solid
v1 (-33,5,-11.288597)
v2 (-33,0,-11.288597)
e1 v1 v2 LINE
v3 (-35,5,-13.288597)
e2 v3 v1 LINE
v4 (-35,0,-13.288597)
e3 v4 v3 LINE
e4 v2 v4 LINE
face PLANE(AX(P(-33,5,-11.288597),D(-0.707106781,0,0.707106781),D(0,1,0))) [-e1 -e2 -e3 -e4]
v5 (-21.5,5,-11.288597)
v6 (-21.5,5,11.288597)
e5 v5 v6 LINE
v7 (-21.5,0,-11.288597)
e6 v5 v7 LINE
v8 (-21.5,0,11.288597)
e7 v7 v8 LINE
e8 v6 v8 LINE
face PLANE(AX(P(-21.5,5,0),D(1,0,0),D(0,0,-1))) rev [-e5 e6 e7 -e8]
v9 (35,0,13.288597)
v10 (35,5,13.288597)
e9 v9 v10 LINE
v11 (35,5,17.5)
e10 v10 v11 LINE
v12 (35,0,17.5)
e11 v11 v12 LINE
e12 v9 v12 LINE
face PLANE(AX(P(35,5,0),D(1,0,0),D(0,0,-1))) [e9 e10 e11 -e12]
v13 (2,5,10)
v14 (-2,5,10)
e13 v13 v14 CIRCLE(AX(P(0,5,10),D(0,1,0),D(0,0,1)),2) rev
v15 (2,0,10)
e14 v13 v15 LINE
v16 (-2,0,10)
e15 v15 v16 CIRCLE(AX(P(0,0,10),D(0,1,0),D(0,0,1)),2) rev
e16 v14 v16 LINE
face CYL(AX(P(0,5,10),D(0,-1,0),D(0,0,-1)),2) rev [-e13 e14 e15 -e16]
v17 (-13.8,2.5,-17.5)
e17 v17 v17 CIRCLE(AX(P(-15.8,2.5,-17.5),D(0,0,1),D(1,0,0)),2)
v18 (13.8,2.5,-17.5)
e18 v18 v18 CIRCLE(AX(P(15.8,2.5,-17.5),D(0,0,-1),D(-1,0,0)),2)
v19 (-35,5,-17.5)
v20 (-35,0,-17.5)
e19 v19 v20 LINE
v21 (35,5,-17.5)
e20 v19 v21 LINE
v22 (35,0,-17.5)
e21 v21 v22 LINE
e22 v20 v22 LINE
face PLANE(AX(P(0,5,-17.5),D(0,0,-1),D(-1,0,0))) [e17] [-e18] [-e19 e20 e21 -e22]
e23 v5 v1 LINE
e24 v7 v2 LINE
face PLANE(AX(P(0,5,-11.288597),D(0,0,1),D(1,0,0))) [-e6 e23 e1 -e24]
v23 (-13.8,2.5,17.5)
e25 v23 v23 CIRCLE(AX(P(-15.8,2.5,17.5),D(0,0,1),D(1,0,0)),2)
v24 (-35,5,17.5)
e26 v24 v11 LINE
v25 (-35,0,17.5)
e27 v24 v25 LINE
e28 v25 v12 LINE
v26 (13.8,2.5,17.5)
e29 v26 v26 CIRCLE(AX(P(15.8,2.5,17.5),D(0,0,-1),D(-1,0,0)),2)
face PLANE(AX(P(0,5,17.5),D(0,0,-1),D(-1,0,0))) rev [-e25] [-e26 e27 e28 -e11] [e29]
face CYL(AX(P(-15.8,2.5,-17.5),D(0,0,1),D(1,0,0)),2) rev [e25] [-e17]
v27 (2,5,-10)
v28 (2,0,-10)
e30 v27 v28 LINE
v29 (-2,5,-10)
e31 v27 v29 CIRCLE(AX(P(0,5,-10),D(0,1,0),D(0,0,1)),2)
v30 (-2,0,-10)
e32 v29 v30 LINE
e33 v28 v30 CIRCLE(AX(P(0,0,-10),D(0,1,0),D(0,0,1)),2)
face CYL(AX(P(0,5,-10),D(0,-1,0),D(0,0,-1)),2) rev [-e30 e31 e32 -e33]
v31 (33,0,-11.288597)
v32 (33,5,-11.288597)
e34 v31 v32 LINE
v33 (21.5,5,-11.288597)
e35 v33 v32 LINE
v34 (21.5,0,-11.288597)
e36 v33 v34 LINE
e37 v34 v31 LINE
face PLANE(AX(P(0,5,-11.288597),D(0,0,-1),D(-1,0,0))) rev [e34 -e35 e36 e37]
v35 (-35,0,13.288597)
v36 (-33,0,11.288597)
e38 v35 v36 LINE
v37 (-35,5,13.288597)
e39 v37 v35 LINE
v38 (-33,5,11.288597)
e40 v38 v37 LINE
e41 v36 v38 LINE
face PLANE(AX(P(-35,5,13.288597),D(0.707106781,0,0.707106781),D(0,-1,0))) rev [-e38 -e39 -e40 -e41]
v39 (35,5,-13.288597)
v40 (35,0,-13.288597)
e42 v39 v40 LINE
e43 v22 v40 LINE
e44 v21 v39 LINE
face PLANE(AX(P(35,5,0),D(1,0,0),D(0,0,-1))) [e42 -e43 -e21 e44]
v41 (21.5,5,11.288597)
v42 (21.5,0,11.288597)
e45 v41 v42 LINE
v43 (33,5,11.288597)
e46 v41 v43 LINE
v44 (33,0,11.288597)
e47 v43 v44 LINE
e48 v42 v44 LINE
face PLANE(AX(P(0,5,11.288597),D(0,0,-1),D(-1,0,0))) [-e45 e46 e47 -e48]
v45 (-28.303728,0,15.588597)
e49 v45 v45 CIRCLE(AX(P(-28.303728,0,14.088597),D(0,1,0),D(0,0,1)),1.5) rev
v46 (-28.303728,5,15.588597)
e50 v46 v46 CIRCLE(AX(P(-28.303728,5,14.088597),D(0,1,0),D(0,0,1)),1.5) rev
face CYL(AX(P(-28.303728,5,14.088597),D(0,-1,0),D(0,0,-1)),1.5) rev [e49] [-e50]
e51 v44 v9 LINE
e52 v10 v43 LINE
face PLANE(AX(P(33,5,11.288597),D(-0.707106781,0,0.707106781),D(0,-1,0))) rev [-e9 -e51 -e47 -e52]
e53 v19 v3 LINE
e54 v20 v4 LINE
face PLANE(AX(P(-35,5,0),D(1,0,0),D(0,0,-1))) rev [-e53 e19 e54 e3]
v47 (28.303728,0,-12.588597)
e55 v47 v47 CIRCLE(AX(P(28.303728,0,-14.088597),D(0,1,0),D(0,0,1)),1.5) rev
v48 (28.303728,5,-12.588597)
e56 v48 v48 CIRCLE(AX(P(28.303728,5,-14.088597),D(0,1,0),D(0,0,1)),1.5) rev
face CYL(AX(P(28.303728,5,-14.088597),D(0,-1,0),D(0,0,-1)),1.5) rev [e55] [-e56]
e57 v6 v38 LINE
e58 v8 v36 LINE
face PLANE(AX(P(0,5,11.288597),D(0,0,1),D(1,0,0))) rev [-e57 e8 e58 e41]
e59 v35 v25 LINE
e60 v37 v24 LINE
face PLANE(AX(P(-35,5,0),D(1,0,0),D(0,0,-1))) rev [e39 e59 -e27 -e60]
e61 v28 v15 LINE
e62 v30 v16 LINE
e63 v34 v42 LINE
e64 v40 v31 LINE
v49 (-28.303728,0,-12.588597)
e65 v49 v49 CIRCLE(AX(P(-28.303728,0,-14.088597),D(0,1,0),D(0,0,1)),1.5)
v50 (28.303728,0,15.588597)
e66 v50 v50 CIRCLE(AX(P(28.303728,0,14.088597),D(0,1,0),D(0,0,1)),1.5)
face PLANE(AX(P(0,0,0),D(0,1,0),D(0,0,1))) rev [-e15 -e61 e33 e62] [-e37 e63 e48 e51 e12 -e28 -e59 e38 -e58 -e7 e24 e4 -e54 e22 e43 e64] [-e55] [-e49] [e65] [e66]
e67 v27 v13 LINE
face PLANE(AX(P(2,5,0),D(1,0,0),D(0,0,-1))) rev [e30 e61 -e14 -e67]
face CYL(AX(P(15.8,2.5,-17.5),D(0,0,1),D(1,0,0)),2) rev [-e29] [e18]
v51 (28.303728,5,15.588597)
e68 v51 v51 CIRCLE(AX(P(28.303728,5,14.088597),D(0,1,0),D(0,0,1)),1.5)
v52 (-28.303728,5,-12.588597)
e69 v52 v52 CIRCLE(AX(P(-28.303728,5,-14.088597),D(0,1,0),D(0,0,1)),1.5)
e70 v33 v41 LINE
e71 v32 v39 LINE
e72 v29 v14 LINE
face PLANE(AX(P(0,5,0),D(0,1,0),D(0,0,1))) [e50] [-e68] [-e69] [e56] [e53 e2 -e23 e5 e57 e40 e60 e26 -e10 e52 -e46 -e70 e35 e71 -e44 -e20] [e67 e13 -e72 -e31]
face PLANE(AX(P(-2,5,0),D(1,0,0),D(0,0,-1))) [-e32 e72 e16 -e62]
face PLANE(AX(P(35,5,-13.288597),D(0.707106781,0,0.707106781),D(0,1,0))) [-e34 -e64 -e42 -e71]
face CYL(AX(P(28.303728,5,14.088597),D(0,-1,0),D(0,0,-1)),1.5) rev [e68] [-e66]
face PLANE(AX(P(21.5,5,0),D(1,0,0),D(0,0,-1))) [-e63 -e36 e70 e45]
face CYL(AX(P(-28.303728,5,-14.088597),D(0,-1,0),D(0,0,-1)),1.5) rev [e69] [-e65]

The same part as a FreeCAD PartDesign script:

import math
import FreeCAD as App
import Part
import Sketcher

V = App.Vector
Q = App.Units.Quantity


def edges_at(feature, points):
    """Names of the edges that pass closest to the given points."""
    edges = feature.Shape.Edges
    near = lambda p: min(range(len(edges)), key=lambda i: edges[i].distToShape(Part.Vertex(*p))[0])
    return sorted({f"Edge{near(p) + 1}" for p in points})

doc = App.newDocument("Part")
params = doc.addObject("Spreadsheet::Sheet", "Params")
for row, (alias, value) in enumerate([
    ("sketch1_diameter", "3 mm"),
    ("sketch1_radius", "2 mm"),
    ("sketch1_width", "70 mm"),
    ("sketch1_height", "20 mm"),
    ("sketch1_width2", "13.5 mm"),
    ("pad1_length", "5 mm"),
    ("chamfer_size", "2 mm"),
    ("sketch2_diameter", "4 mm"),
], start=1):
    params.set(f"A{row}", alias)
    params.set(f"B{row}", "=" + value)
    params.setAlias(f"B{row}", alias)

body = doc.addObject("PartDesign::Body", "Body")

# Sketch on XZ plane
sketch1 = body.newObject("Sketcher::SketchObject", "Sketch")
sketch1.AttachmentSupport = (doc.getObject("XZ_Plane"), [""])
sketch1.MapMode = "FlatFace"
sketch1.addGeometry(Part.LineSegment(V(35, -17.5, 0), V(-35, -17.5, 0)), False)
sketch1.addGeometry(Part.LineSegment(V(-35, -17.5, 0), V(-35, -11.3, 0)), False)
sketch1.addGeometry(Part.LineSegment(V(-35, -11.3, 0), V(-21.5, -11.3, 0)), False)
sketch1.addGeometry(Part.LineSegment(V(-21.5, -11.3, 0), V(-21.5, 11.3, 0)), False)
sketch1.addGeometry(Part.LineSegment(V(-21.5, 11.3, 0), V(-35, 11.3, 0)), False)
sketch1.addGeometry(Part.LineSegment(V(-35, 11.3, 0), V(-35, 17.5, 0)), False)
sketch1.addGeometry(Part.LineSegment(V(-35, 17.5, 0), V(35, 17.5, 0)), False)
sketch1.addGeometry(Part.LineSegment(V(35, 17.5, 0), V(35, 11.3, 0)), False)
sketch1.addGeometry(Part.LineSegment(V(35, 11.3, 0), V(21.5, 11.3, 0)), False)
sketch1.addGeometry(Part.LineSegment(V(21.5, 11.3, 0), V(21.5, -11.3, 0)), False)
sketch1.addGeometry(Part.LineSegment(V(21.5, -11.3, 0), V(35, -11.3, 0)), False)
sketch1.addGeometry(Part.LineSegment(V(35, -11.3, 0), V(35, -17.5, 0)), False)
sketch1.addGeometry(Part.Circle(V(-28.3, 14.1, 0), V(0, 0, 1), 1.5), False)
sketch1.addGeometry(Part.Circle(V(28.3, 14.1, 0), V(0, 0, 1), 1.5), False)
sketch1.addGeometry(Part.Circle(V(-28.3, -14.1, 0), V(0, 0, 1), 1.5), False)
sketch1.addGeometry(Part.LineSegment(V(-2, 10, 0), V(-2, -10, 0)), False)
sketch1.addGeometry(Part.ArcOfCircle(Part.Circle(V(0, -10, 0), V(0, 0, 1), 2), math.radians(180), math.radians(360)), False)
sketch1.addGeometry(Part.LineSegment(V(2, -10, 0), V(2, 10, 0)), False)
sketch1.addGeometry(Part.ArcOfCircle(Part.Circle(V(0, 10, 0), V(0, 0, 1), 2), math.radians(0), math.radians(180)), False)
sketch1.addGeometry(Part.Circle(V(28.3, -14.1, 0), V(0, 0, 1), 1.5), False)
sketch1.addConstraint(Sketcher.Constraint("Coincident", 0, 2, 1, 1))
sketch1.addConstraint(Sketcher.Constraint("Coincident", 1, 2, 2, 1))
sketch1.addConstraint(Sketcher.Constraint("Coincident", 2, 2, 3, 1))
sketch1.addConstraint(Sketcher.Constraint("Coincident", 3, 2, 4, 1))
sketch1.addConstraint(Sketcher.Constraint("Coincident", 4, 2, 5, 1))
sketch1.addConstraint(Sketcher.Constraint("Coincident", 5, 2, 6, 1))
sketch1.addConstraint(Sketcher.Constraint("Coincident", 6, 2, 7, 1))
sketch1.addConstraint(Sketcher.Constraint("Coincident", 7, 2, 8, 1))
sketch1.addConstraint(Sketcher.Constraint("Coincident", 8, 2, 9, 1))
sketch1.addConstraint(Sketcher.Constraint("Coincident", 9, 2, 10, 1))
sketch1.addConstraint(Sketcher.Constraint("Coincident", 10, 2, 11, 1))
sketch1.addConstraint(Sketcher.Constraint("Coincident", 11, 2, 0, 1))
sketch1.addConstraint(Sketcher.Constraint("Tangent", 15, 2, 16, 1))
sketch1.addConstraint(Sketcher.Constraint("Tangent", 16, 2, 17, 1))
sketch1.addConstraint(Sketcher.Constraint("Tangent", 17, 2, 18, 1))
sketch1.addConstraint(Sketcher.Constraint("Tangent", 18, 2, 15, 1))
sketch1.addConstraint(Sketcher.Constraint("Horizontal", 0))
sketch1.addConstraint(Sketcher.Constraint("Vertical", 1))
sketch1.addConstraint(Sketcher.Constraint("Horizontal", 2))
sketch1.addConstraint(Sketcher.Constraint("Vertical", 3))
sketch1.addConstraint(Sketcher.Constraint("Horizontal", 4))
sketch1.addConstraint(Sketcher.Constraint("Vertical", 5))
sketch1.addConstraint(Sketcher.Constraint("Horizontal", 6))
sketch1.addConstraint(Sketcher.Constraint("Vertical", 7))
sketch1.addConstraint(Sketcher.Constraint("Horizontal", 8))
sketch1.addConstraint(Sketcher.Constraint("Vertical", 9))
sketch1.addConstraint(Sketcher.Constraint("Horizontal", 10))
sketch1.addConstraint(Sketcher.Constraint("Vertical", 11))
sketch1.addConstraint(Sketcher.Constraint("Vertical", 15))
sketch1.addConstraint(Sketcher.Constraint("Vertical", 17))
sketch1.addConstraint(Sketcher.Constraint("Equal", 12, 13))
sketch1.addConstraint(Sketcher.Constraint("Equal", 13, 14))
sketch1.addConstraint(Sketcher.Constraint("Equal", 14, 19))
sketch1.addConstraint(Sketcher.Constraint("Symmetric", 13, 3, 14, 3, -1, 1))
sketch1.addConstraint(Sketcher.Constraint("Symmetric", 16, 3, 18, 3, -1, 1))
sketch1.addConstraint(Sketcher.Constraint("Symmetric", 12, 3, 19, 3, -1, 1))
sketch1.addConstraint(Sketcher.Constraint("Symmetric", 0, 2, 6, 2, -1, 1))
sketch1.addConstraint(Sketcher.Constraint("Symmetric", 2, 2, 8, 2, -1, 1))
sketch1.addConstraint(Sketcher.Constraint("Symmetric", 4, 2, 10, 2, -1, 1))
sketch1.addConstraint(Sketcher.Constraint("Symmetric", 12, 3, 13, 3, -2))
sketch1.addConstraint(Sketcher.Constraint("Symmetric", 4, 2, 7, 2, -2))
sketch1.addConstraint(Sketcher.Constraint("Diameter", 12, Q("3 mm")))
sketch1.addConstraint(Sketcher.Constraint("Radius", 16, Q("2 mm")))
sketch1.addConstraint(Sketcher.Constraint("DistanceX", 0, 2, 0, 1, Q("70 mm")))
sketch1.addConstraint(Sketcher.Constraint("DistanceY", 15, 2, 15, 1, Q("20 mm")))
sketch1.addConstraint(Sketcher.Constraint("DistanceX", 2, 1, 2, 2, Q("13.5 mm")))
sketch1.addConstraint(Sketcher.Constraint("DistanceY", 0, 2, -1, 1, Q("17.5 mm")))
sketch1.addConstraint(Sketcher.Constraint("DistanceY", 14, 3, 1, 2, Q("2.8 mm")))
sketch1.addConstraint(Sketcher.Constraint("DistanceY", 1, 1, 1, 2, Q("6.211403 mm")))
sketch1.addConstraint(Sketcher.Constraint("DistanceX", 12, 3, -1, 1, Q("28.303728 mm")))
sketch1.setExpression("Constraints[41]", "Params.sketch1_diameter")
sketch1.setExpression("Constraints[42]", "Params.sketch1_radius")
sketch1.setExpression("Constraints[43]", "Params.sketch1_width")
sketch1.setExpression("Constraints[44]", "Params.sketch1_height")
sketch1.setExpression("Constraints[45]", "Params.sketch1_width2")
pad1 = body.newObject("PartDesign::Pad", "Pad")
pad1.Profile = sketch1
pad1.setExpression("Length", "Params.pad1_length")
pad1.Reversed = True
doc.recompute()

chamfer = body.newObject("PartDesign::Chamfer", "Chamfer")
chamfer.Base = (pad1, edges_at(pad1, [
    (35, 2.5, 11.289),
    (-35, 2.5, 11.289),
    (-35, 2.5, -11.289),
    (35, 2.5, -11.289),
]))
chamfer.setExpression("Size", "Params.chamfer_size")

# Sketch on XY plane
sketch2 = body.newObject("Sketcher::SketchObject", "Sketch001")
sketch2.AttachmentSupport = (doc.getObject("XY_Plane"), [""])
sketch2.MapMode = "FlatFace"
sketch2.AttachmentOffset = App.Placement(V(0, 0, 17.5), App.Rotation())
sketch2.addGeometry(Part.Circle(V(-15.8, 2.5, 0), V(0, 0, 1), 2), False)
sketch2.addGeometry(Part.Circle(V(15.8, 2.5, 0), V(0, 0, 1), 2), False)
sketch2.addConstraint(Sketcher.Constraint("Equal", 0, 1))
sketch2.addConstraint(Sketcher.Constraint("Symmetric", 0, 3, 1, 3, -2))
sketch2.addConstraint(Sketcher.Constraint("Diameter", 0, Q("4 mm")))
sketch2.addConstraint(Sketcher.Constraint("DistanceX", 0, 3, -1, 1, Q("15.8 mm")))
sketch2.addConstraint(Sketcher.Constraint("DistanceY", -1, 1, 0, 3, Q("2.5 mm")))
sketch2.setExpression("Constraints[2]", "Params.sketch2_diameter")
pocket1 = body.newObject("PartDesign::Pocket", "Pocket")
pocket1.Profile = sketch2
pocket1.Type = "ThroughAll"

doc.recompute()
